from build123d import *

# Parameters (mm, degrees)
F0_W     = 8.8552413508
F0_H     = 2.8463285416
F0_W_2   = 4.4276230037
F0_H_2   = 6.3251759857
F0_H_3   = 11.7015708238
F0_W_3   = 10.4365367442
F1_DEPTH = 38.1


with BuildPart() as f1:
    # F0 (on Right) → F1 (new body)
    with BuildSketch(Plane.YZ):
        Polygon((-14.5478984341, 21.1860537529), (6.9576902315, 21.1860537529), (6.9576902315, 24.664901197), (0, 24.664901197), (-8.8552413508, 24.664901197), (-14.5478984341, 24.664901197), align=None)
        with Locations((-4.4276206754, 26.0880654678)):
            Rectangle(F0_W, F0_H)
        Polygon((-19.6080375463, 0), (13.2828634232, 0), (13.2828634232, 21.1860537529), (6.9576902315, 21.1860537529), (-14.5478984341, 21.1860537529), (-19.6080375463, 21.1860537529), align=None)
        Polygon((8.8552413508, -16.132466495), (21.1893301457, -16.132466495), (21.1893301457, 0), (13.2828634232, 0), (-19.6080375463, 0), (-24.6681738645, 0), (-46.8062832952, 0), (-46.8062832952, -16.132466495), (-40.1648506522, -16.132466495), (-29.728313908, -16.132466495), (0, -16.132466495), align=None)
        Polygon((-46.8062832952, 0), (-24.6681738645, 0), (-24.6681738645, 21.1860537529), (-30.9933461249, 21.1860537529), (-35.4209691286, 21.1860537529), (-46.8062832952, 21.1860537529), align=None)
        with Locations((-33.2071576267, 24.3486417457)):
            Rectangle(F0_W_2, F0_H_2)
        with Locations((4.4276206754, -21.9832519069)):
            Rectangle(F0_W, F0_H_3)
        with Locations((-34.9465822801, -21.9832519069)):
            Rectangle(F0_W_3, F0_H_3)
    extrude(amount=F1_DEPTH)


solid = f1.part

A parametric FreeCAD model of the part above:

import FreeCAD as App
import Part
import Sketcher
Q = App.Units.Quantity


def add_polygon(sketch, points):
    """Adds a closed chain of lines whose ends are joined by coincident constraints."""
    first, n = sketch.GeometryCount, len(points)
    for a, b in zip(points, points[1:] + points[:1]):
        sketch.addGeometry(Part.LineSegment(App.Vector(*a, 0), App.Vector(*b, 0)), False)
    for i in range(n):
        sketch.addConstraint(Sketcher.Constraint("Coincident", first + i, 2, first + (i + 1) % n, 1))

doc = App.newDocument("Part")
body = doc.addObject("PartDesign::Body", "Body")

# Sketch on YZ plane
sketch1 = body.newObject("Sketcher::SketchObject", "Sketch")
sketch1.AttachmentSupport = (doc.getObject("YZ_Plane"), [""])
sketch1.MapMode = "FlatFace"
add_polygon(sketch1, [(6.95769, 21.186054), (6.95769, 24.664901), (0, 24.664901), (0, 27.51123), (-8.855241, 27.51123), (-8.855241, 24.664901), (-14.547898, 24.664901), (-14.547898, 21.186054), (-19.608038, 21.186054), (-19.608038, 0), (-24.668174, 0), (-24.668174, 21.186054), (-30.993346, 21.186054), (-30.993346, 27.51123), (-35.420969, 27.51123), (-35.420969, 21.186054), (-46.806283, 21.186054), (-46.806283, -16.132466), (-40.164851, -16.132466), (-40.164851, -27.834037), (-29.728314, -27.834037), (-29.728314, -16.132466), (0, -16.132466), (0, -27.834037), (8.855241, -27.834037), (8.855241, -16.132466), (21.18933, -16.132466), (21.18933, 0), (13.282863, 0), (13.282863, 21.186054)])  # lines 0-29
sketch1.addConstraint([
    Sketcher.Constraint("Vertical", 0),
    Sketcher.Constraint("Horizontal", 1),
    Sketcher.Constraint("Vertical", 2),
    Sketcher.Constraint("Horizontal", 3),
    Sketcher.Constraint("Vertical", 4),
    Sketcher.Constraint("Horizontal", 5),
    Sketcher.Constraint("Vertical", 6),
    Sketcher.Constraint("Horizontal", 7),
    Sketcher.Constraint("Vertical", 8),
    Sketcher.Constraint("Horizontal", 9),
    Sketcher.Constraint("Vertical", 10),
    Sketcher.Constraint("Horizontal", 11),
    Sketcher.Constraint("Vertical", 12),
    Sketcher.Constraint("Horizontal", 13),
    Sketcher.Constraint("Vertical", 14),
    Sketcher.Constraint("Horizontal", 15),
    Sketcher.Constraint("Vertical", 16),
    Sketcher.Constraint("Horizontal", 17),
    Sketcher.Constraint("Vertical", 18),
    Sketcher.Constraint("Horizontal", 19),
    Sketcher.Constraint("Vertical", 20),
    Sketcher.Constraint("Horizontal", 21),
    Sketcher.Constraint("Vertical", 22),
    Sketcher.Constraint("Horizontal", 23),
    Sketcher.Constraint("Vertical", 24),
    Sketcher.Constraint("Horizontal", 25),
    Sketcher.Constraint("Vertical", 26),
    Sketcher.Constraint("Horizontal", 27),
    Sketcher.Constraint("Vertical", 28),
    Sketcher.Constraint("Horizontal", 29),
    Sketcher.Constraint("PointOnObject", 1, 2, -2),
    Sketcher.Constraint("PointOnObject", 8, 2, -1),
    Sketcher.Constraint("PointOnObject", 21, 2, -2),
    Sketcher.Constraint("PointOnObject", 26, 2, -1),
    Sketcher.Constraint("Horizontal", 1, 2, 4, 2),
    Sketcher.Constraint("Horizontal", 7, 2, 10, 2),
    Sketcher.Constraint("Horizontal", 3, 2, 12, 2),
    Sketcher.Constraint("Horizontal", 11, 2, 14, 2),
    Sketcher.Constraint("Horizontal", 17, 2, 20, 2),
    Sketcher.Constraint("Horizontal", 19, 2, 22, 2),
    Sketcher.Constraint("Horizontal", 21, 2, 24, 2),
    Sketcher.Constraint("Horizontal", 15, 2, 28, 2),
    Sketcher.Constraint("Equal", 3, 23),
    Sketcher.Constraint("Equal", 11, 29),
    Sketcher.Constraint("DistanceX", 1, 2, 1, 1, Q("6.95769 mm")),
    Sketcher.Constraint("DistanceX", 3, 2, 3, 1, Q("8.855241 mm")),
    Sketcher.Constraint("DistanceX", 7, 2, 7, 1, Q("5.060139 mm")),
    Sketcher.Constraint("DistanceX", 25, 1, 25, 2, Q("12.334089 mm")),
    Sketcher.Constraint("DistanceY", 2, 1, 2, 2, Q("2.846329 mm")),
    Sketcher.Constraint("DistanceY", 16, 2, 16, 1, Q("37.31852 mm")),
    Sketcher.Constraint("DistanceY", 18, 2, 18, 1, Q("11.701571 mm")),
    Sketcher.Constraint("DistanceY", -1, 1, 0, 2, Q("24.664901 mm")),
    Sketcher.Constraint("DistanceX", 5, 2, -1, 1, Q("14.547898 mm")),
    Sketcher.Constraint("DistanceX", 9, 2, 9, 1, Q("5.060136 mm")),
    Sketcher.Constraint("DistanceX", 11, 2, 11, 1, Q("6.325172 mm")),
    Sketcher.Constraint("DistanceX", 13, 2, 13, 1, Q("4.427623 mm")),
    Sketcher.Constraint("DistanceX", 15, 2, 15, 1, Q("11.385314 mm")),
    Sketcher.Constraint("DistanceX", 17, 1, 17, 2, Q("6.641433 mm")),
    Sketcher.Constraint("DistanceX", 19, 1, 19, 2, Q("10.436537 mm")),
    Sketcher.Constraint("DistanceY", 0, 1, 0, 2, Q("3.478847 mm")),
])
pad1 = body.newObject("PartDesign::Pad", "Pad")
pad1.Profile = sketch1
pad1.Length = Q("1.5 in")

doc.recompute()
